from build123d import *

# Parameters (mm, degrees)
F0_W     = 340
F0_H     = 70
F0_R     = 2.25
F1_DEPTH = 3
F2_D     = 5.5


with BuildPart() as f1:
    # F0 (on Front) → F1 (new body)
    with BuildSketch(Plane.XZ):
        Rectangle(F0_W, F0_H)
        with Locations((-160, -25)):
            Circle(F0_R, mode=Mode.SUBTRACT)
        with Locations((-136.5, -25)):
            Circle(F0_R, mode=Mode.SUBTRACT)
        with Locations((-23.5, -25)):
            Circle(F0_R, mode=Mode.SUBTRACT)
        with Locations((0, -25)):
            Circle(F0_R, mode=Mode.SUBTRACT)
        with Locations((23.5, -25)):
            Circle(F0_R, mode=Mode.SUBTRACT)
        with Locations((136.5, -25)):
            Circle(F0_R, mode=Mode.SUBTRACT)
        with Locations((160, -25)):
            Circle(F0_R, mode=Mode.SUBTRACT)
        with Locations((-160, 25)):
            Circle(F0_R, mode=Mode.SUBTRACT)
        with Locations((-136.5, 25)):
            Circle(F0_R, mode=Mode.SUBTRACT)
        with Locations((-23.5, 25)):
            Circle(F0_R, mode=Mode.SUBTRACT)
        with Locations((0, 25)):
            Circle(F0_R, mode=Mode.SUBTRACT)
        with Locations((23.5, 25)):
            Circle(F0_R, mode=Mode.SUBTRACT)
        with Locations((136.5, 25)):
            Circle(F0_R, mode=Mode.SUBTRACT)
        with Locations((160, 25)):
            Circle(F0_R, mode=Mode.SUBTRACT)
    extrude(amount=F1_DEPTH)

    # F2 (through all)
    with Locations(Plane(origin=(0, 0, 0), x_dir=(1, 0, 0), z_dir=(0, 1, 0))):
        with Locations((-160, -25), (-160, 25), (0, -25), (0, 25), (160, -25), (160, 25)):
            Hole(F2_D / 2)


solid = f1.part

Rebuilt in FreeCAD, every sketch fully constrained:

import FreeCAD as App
import Part
import Sketcher
from FreeCAD import Vector


def add_polygon(sketch, points):
    """Adds a closed chain of lines whose ends are joined by coincident constraints."""
    first, n = sketch.GeometryCount, len(points)
    for a, b in zip(points, points[1:] + points[:1]):
        sketch.addGeometry(Part.LineSegment(App.Vector(*a, 0), App.Vector(*b, 0)), False)
    for i in range(n):
        sketch.addConstraint(Sketcher.Constraint("Coincident", first + i, 2, first + (i + 1) % n, 1))

doc = App.newDocument("Part")
params = doc.addObject("Spreadsheet::Sheet", "Params")
for row, (alias, value) in enumerate([
    ("sketch1_diameter", "4.5 mm"),
    ("sketch1_width", "340 mm"),
    ("sketch1_height", "70 mm"),
    ("pad1_length", "3 mm"),
    ("sketch2_diameter", "5.5 mm"),
    ("hole_diameter", "5.5 mm"),
], start=1):
    params.set(f"A{row}", alias)
    params.set(f"B{row}", "=" + value)
    params.setAlias(f"B{row}", alias)

body = doc.addObject("PartDesign::Body", "Body")

# Sketch on XZ plane
sketch1 = body.newObject("Sketcher::SketchObject", "Sketch")
sketch1.AttachmentSupport = (doc.getObject("XZ_Plane"), [""])
sketch1.MapMode = "FlatFace"
add_polygon(sketch1, [(-170, 35), (-170, -35), (170, -35), (170, 35)])  # lines 0-3
sketch1.addGeometry(Part.Circle(Vector(-160, -25, 0), Vector(0, 0, 1), 2.2), False)  # 4
sketch1.addGeometry(Part.Circle(Vector(-136.5, -25, 0), Vector(0, 0, 1), 2.2), False)  # 5
sketch1.addGeometry(Part.Circle(Vector(-23.5, -25, 0), Vector(0, 0, 1), 2.2), False)  # 6
sketch1.addGeometry(Part.Circle(Vector(0, -25, 0), Vector(0, 0, 1), 2.2), False)  # 7
sketch1.addGeometry(Part.Circle(Vector(23.5, -25, 0), Vector(0, 0, 1), 2.2), False)  # 8
sketch1.addGeometry(Part.Circle(Vector(136.5, -25, 0), Vector(0, 0, 1), 2.2), False)  # 9
sketch1.addGeometry(Part.Circle(Vector(160, -25, 0), Vector(0, 0, 1), 2.2), False)  # 10
sketch1.addGeometry(Part.Circle(Vector(-160, 25, 0), Vector(0, 0, 1), 2.2), False)  # 11
sketch1.addGeometry(Part.Circle(Vector(-136.5, 25, 0), Vector(0, 0, 1), 2.2), False)  # 12
sketch1.addGeometry(Part.Circle(Vector(-23.5, 25, 0), Vector(0, 0, 1), 2.2), False)  # 13
sketch1.addGeometry(Part.Circle(Vector(0, 25, 0), Vector(0, 0, 1), 2.2), False)  # 14
sketch1.addGeometry(Part.Circle(Vector(23.5, 25, 0), Vector(0, 0, 1), 2.2), False)  # 15
sketch1.addGeometry(Part.Circle(Vector(136.5, 25, 0), Vector(0, 0, 1), 2.2), False)  # 16
sketch1.addGeometry(Part.Circle(Vector(160, 25, 0), Vector(0, 0, 1), 2.2), False)  # 17
sketch1.addConstraint(Sketcher.Constraint("Vertical", 0))
sketch1.addConstraint(Sketcher.Constraint("Horizontal", 1))
sketch1.addConstraint(Sketcher.Constraint("Vertical", 2))
sketch1.addConstraint(Sketcher.Constraint("Horizontal", 3))
sketch1.addConstraint(Sketcher.Constraint("Equal", 4, 5))
sketch1.addConstraint(Sketcher.Constraint("Equal", 5, 6))
sketch1.addConstraint(Sketcher.Constraint("Equal", 6, 7))
sketch1.addConstraint(Sketcher.Constraint("Equal", 7, 8))
sketch1.addConstraint(Sketcher.Constraint("Equal", 8, 9))
sketch1.addConstraint(Sketcher.Constraint("Equal", 9, 10))
sketch1.addConstraint(Sketcher.Constraint("Equal", 10, 11))
sketch1.addConstraint(Sketcher.Constraint("Equal", 11, 12))
sketch1.addConstraint(Sketcher.Constraint("Equal", 12, 13))
sketch1.addConstraint(Sketcher.Constraint("Equal", 13, 14))
sketch1.addConstraint(Sketcher.Constraint("Equal", 14, 15))
sketch1.addConstraint(Sketcher.Constraint("Equal", 15, 16))
sketch1.addConstraint(Sketcher.Constraint("Equal", 16, 17))
sketch1.addConstraint(Sketcher.Constraint("Symmetric", 10, 3, 11, 3, -1, 1))
sketch1.addConstraint(Sketcher.Constraint("Symmetric", 9, 3, 12, 3, -1, 1))
sketch1.addConstraint(Sketcher.Constraint("Symmetric", 8, 3, 13, 3, -1, 1))
sketch1.addConstraint(Sketcher.Constraint("Symmetric", 7, 3, 14, 3, -1, 1))
sketch1.addConstraint(Sketcher.Constraint("Symmetric", 6, 3, 15, 3, -1, 1))
sketch1.addConstraint(Sketcher.Constraint("Symmetric", 5, 3, 16, 3, -1, 1))
sketch1.addConstraint(Sketcher.Constraint("Symmetric", 4, 3, 17, 3, -1, 1))
sketch1.addConstraint(Sketcher.Constraint("Symmetric", 0, 2, 2, 2, -1, 1))
sketch1.addConstraint(Sketcher.Constraint("Symmetric", 6, 3, 8, 3, -2))
sketch1.addConstraint(Sketcher.Constraint("Symmetric", 5, 3, 9, 3, -2))
sketch1.addConstraint(Sketcher.Constraint("Symmetric", 4, 3, 10, 3, -2))
sketch1.addConstraint(Sketcher.Constraint("PointOnObject", 7, 3, -2))
sketch1.addConstraint(Sketcher.Constraint("Horizontal", 4, 3, 5, 3))
sketch1.addConstraint(Sketcher.Constraint("Horizontal", 5, 3, 6, 3))
sketch1.addConstraint(Sketcher.Constraint("Horizontal", 6, 3, 7, 3))
sketch1.addConstraint(Sketcher.Constraint("Diameter", 4, 4.5))
sketch1.addConstraint(Sketcher.Constraint("DistanceX", 1, 1, 1, 2, 340.0))
sketch1.addConstraint(Sketcher.Constraint("DistanceY", 0, 2, 0, 1, 70.0))
sketch1.addConstraint(Sketcher.Constraint("DistanceX", 4, 3, -1, 1, 160.0))
sketch1.addConstraint(Sketcher.Constraint("DistanceY", 4, 3, -1, 1, 25.0))
sketch1.addConstraint(Sketcher.Constraint("DistanceX", 5, 3, 6, 3, 113.0))
sketch1.addConstraint(Sketcher.Constraint("DistanceX", 6, 3, 8, 3, 47.0))
sketch1.setExpression("Constraints[36]", "Params.sketch1_diameter")
sketch1.setExpression("Constraints[37]", "Params.sketch1_width")
sketch1.setExpression("Constraints[38]", "Params.sketch1_height")
pad1 = body.newObject("PartDesign::Pad", "Pad")
pad1.Profile = sketch1
pad1.setExpression("Length", "Params.pad1_length")

# Sketch on XZ plane
sketch2 = body.newObject("Sketcher::SketchObject", "Sketch001")
sketch2.AttachmentSupport = (doc.getObject("XZ_Plane"), [""])
sketch2.MapMode = "FlatFace"
sketch2.addGeometry(Part.Circle(Vector(-160, 25, 0), Vector(0, 0, 1), 2.8), False)
sketch2.addGeometry(Part.Circle(Vector(-160, -25, 0), Vector(0, 0, 1), 2.8), False)
sketch2.addGeometry(Part.Circle(Vector(0, 25, 0), Vector(0, 0, 1), 2.8), False)
sketch2.addGeometry(Part.Circle(Vector(0, -25, 0), Vector(0, 0, 1), 2.8), False)
sketch2.addGeometry(Part.Circle(Vector(160, 25, 0), Vector(0, 0, 1), 2.8), False)
sketch2.addGeometry(Part.Circle(Vector(160, -25, 0), Vector(0, 0, 1), 2.8), False)
sketch2.addConstraint(Sketcher.Constraint("Equal", 0, 1))
sketch2.addConstraint(Sketcher.Constraint("Equal", 1, 2))
sketch2.addConstraint(Sketcher.Constraint("Equal", 2, 3))
sketch2.addConstraint(Sketcher.Constraint("Equal", 3, 4))
sketch2.addConstraint(Sketcher.Constraint("Equal", 4, 5))
sketch2.addConstraint(Sketcher.Constraint("Symmetric", 2, 3, 3, 3, -1, 1))
sketch2.addConstraint(Sketcher.Constraint("Symmetric", 1, 3, 4, 3, -1, 1))
sketch2.addConstraint(Sketcher.Constraint("Symmetric", 0, 3, 5, 3, -1, 1))
sketch2.addConstraint(Sketcher.Constraint("Symmetric", 0, 3, 4, 3, -2))
sketch2.addConstraint(Sketcher.Constraint("PointOnObject", 2, 3, -2))
sketch2.addConstraint(Sketcher.Constraint("Horizontal", 0, 3, 2, 3))
sketch2.addConstraint(Sketcher.Constraint("Diameter", 0, 5.5))
sketch2.addConstraint(Sketcher.Constraint("DistanceX", 0, 3, -1, 1, 160.0))
sketch2.addConstraint(Sketcher.Constraint("DistanceY", -1, 1, 0, 3, 25.0))
sketch2.setExpression("Constraints[11]", "Params.sketch2_diameter")
doc.recompute()
hole = body.newObject("PartDesign::Hole", "Hole")
hole.Profile = sketch2
hole.ThreadType = "None"
hole.setExpression("Diameter", "Params.hole_diameter")
hole.DepthType = "ThroughAll"
hole.Reversed = True

doc.recompute()
